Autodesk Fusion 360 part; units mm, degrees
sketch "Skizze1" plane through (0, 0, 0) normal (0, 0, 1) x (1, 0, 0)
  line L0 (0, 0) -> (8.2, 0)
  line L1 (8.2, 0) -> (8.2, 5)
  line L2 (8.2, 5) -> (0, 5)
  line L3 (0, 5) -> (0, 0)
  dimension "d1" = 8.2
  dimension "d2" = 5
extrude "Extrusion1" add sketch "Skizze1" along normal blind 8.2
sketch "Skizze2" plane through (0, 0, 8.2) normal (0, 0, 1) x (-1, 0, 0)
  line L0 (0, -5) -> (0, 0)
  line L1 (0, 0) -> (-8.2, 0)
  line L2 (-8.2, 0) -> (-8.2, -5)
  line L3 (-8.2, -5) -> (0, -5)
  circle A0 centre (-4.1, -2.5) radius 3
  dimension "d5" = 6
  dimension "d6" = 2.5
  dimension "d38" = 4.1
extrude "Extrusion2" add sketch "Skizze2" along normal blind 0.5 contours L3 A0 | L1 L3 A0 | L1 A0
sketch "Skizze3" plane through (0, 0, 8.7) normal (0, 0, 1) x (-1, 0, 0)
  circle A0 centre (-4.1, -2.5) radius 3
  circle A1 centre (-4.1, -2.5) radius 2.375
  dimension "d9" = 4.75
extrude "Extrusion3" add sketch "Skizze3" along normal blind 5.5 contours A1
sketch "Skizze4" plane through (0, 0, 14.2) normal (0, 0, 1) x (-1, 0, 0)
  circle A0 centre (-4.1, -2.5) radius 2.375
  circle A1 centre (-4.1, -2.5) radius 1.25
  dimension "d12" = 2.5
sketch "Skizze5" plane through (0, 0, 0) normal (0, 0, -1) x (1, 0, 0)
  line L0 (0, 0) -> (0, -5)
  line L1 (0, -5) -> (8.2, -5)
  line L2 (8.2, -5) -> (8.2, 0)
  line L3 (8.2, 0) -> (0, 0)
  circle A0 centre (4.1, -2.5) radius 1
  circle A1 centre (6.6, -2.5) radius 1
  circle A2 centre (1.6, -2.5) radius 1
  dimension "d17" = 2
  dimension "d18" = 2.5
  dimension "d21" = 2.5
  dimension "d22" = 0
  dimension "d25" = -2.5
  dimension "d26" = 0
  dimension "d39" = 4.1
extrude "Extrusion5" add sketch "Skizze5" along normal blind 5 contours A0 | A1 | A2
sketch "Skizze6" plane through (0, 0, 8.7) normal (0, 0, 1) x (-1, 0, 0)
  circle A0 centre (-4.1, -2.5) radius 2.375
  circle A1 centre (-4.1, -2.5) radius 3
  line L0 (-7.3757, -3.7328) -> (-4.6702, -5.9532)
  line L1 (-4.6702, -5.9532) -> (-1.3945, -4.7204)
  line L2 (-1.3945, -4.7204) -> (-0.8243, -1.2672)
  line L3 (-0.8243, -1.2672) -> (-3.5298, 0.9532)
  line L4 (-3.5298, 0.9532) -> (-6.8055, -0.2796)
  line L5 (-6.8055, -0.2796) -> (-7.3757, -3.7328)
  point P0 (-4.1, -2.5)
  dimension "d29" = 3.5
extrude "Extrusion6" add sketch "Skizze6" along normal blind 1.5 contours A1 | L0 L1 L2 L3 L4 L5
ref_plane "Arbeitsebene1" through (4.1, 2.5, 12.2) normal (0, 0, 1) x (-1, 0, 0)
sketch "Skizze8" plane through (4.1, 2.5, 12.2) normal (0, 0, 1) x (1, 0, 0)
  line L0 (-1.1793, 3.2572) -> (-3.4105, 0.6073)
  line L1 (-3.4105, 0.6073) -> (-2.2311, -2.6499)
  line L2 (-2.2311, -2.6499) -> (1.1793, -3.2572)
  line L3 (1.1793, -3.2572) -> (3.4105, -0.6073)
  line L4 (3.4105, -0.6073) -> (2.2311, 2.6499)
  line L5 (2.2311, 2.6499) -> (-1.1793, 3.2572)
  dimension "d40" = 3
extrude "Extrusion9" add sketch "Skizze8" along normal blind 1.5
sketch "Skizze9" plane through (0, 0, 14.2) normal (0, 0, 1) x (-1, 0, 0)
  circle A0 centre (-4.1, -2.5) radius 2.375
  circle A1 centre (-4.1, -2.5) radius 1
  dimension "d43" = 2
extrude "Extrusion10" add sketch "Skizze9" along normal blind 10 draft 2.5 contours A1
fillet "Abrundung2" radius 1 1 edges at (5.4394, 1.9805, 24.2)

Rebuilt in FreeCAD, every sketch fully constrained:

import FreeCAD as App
import Part
import Sketcher
Q = App.Units.Quantity


def edges_at(feature, points):
    """Names of the edges that pass closest to the given points."""
    edges = feature.Shape.Edges
    near = lambda p: min(range(len(edges)), key=lambda i: edges[i].distToShape(Part.Vertex(*p))[0])
    return sorted({f"Edge{near(p) + 1}" for p in points})


def add_polygon(sketch, points):
    """Adds a closed chain of lines whose ends are joined by coincident constraints."""
    first, n = sketch.GeometryCount, len(points)
    for a, b in zip(points, points[1:] + points[:1]):
        sketch.addGeometry(Part.LineSegment(App.Vector(*a, 0), App.Vector(*b, 0)), False)
    for i in range(n):
        sketch.addConstraint(Sketcher.Constraint("Coincident", first + i, 2, first + (i + 1) % n, 1))

doc = App.newDocument("Part")
params = doc.addObject("Spreadsheet::Sheet", "Params")
for row, (alias, value) in enumerate([
    ("sketch1_height", "5 mm"),
    ("sketch1_width", "8.2 mm"),
    ("pad1_length", "8.2 mm"),
    ("sketch2_diameter", "6 mm"),
    ("pad2_length", "0.5 mm"),
    ("sketch3_diameter", "4.75 mm"),
    ("pad3_length", "5.5 mm"),
    ("sketch4_diameter", "2 mm"),
    ("pad4_length", "5 mm"),
    ("sketch5_length", "3.5 mm"),
    ("sketch5_diameter", "4.75 mm"),
    ("pad5_length", "1.5 mm"),
    ("pad6_length", "1.5 mm"),
    ("sketch7_diameter", "2 mm"),
    ("pad7_length", "10 mm"),
    ("pad7_taper", "2.5 deg"),
    ("fillet_radius", "1 mm"),
], start=1):
    params.set(f"A{row}", alias)
    params.set(f"B{row}", "=" + value)
    params.setAlias(f"B{row}", alias)

body = doc.addObject("PartDesign::Body", "Body")

# Sketch on XY plane
sketch1 = body.newObject("Sketcher::SketchObject", "Sketch")
sketch1.AttachmentSupport = (doc.getObject("XY_Plane"), [""])
sketch1.MapMode = "FlatFace"
add_polygon(sketch1, [(0, 5), (0, 0), (8, 0), (8, 5)])  # lines 0-3
sketch1.addConstraint(Sketcher.Constraint("Vertical", 0))
sketch1.addConstraint(Sketcher.Constraint("Horizontal", 1))
sketch1.addConstraint(Sketcher.Constraint("Vertical", 2))
sketch1.addConstraint(Sketcher.Constraint("Horizontal", 3))
sketch1.addConstraint(Sketcher.Constraint("Coincident", 0, 2, -1, 1))
sketch1.addConstraint(Sketcher.Constraint("DistanceY", 0, 2, 0, 1, Q("5 mm")))
sketch1.addConstraint(Sketcher.Constraint("DistanceX", 1, 1, 1, 2, Q("8.2 mm")))
sketch1.setExpression("Constraints[9]", "Params.sketch1_height")
sketch1.setExpression("Constraints[10]", "Params.sketch1_width")
pad1 = body.newObject("PartDesign::Pad", "Pad")
pad1.Profile = sketch1
pad1.setExpression("Length", "Params.pad1_length")

# Sketch on XY plane
sketch2 = body.newObject("Sketcher::SketchObject", "Sketch001")
sketch2.AttachmentSupport = (doc.getObject("XY_Plane"), [""])
sketch2.MapMode = "FlatFace"
sketch2.AttachmentOffset = App.Placement(App.Vector(0, 0, 8.2), App.Rotation())
sketch2.addGeometry(Part.Circle(App.Vector(4.1, 2.5, 0), App.Vector(0, 0, 1), 3), False)
sketch2.addConstraint(Sketcher.Constraint("Diameter", 0, Q("6 mm")))
sketch2.addConstraint(Sketcher.Constraint("DistanceX", -1, 1, 0, 3, Q("4.1 mm")))
sketch2.addConstraint(Sketcher.Constraint("DistanceY", -1, 1, 0, 3, Q("2.5 mm")))
sketch2.setExpression("Constraints[0]", "Params.sketch2_diameter")
pad2 = body.newObject("PartDesign::Pad", "Pad001")
pad2.Profile = sketch2
pad2.setExpression("Length", "Params.pad2_length")

# Sketch on XY plane
sketch3 = body.newObject("Sketcher::SketchObject", "Sketch002")
sketch3.AttachmentSupport = (doc.getObject("XY_Plane"), [""])
sketch3.MapMode = "FlatFace"
sketch3.AttachmentOffset = App.Placement(App.Vector(0, 0, 8.7), App.Rotation())
sketch3.addGeometry(Part.Circle(App.Vector(4.1, 2.5, 0), App.Vector(0, 0, 1), 2.4), False)
sketch3.addConstraint(Sketcher.Constraint("Diameter", 0, Q("4.75 mm")))
sketch3.addConstraint(Sketcher.Constraint("DistanceX", -1, 1, 0, 3, Q("4.1 mm")))
sketch3.addConstraint(Sketcher.Constraint("DistanceY", -1, 1, 0, 3, Q("2.5 mm")))
sketch3.setExpression("Constraints[0]", "Params.sketch3_diameter")
pad3 = body.newObject("PartDesign::Pad", "Pad002")
pad3.Profile = sketch3
pad3.setExpression("Length", "Params.pad3_length")

# Sketch on XY plane
sketch4 = body.newObject("Sketcher::SketchObject", "Sketch003")
sketch4.AttachmentSupport = (doc.getObject("XY_Plane"), [""])
sketch4.MapMode = "FlatFace"
sketch4.addGeometry(Part.Circle(App.Vector(4.1, 2.5, 0), App.Vector(0, 0, 1), 1), False)
sketch4.addGeometry(Part.Circle(App.Vector(6.6, 2.5, 0), App.Vector(0, 0, 1), 1), False)
sketch4.addGeometry(Part.Circle(App.Vector(1.6, 2.5, 0), App.Vector(0, 0, 1), 1), False)
sketch4.addConstraint(Sketcher.Constraint("Equal", 0, 1))
sketch4.addConstraint(Sketcher.Constraint("Equal", 1, 2))
sketch4.addConstraint(Sketcher.Constraint("Horizontal", 0, 3, 1, 3))
sketch4.addConstraint(Sketcher.Constraint("Horizontal", 1, 3, 2, 3))
sketch4.addConstraint(Sketcher.Constraint("Diameter", 0, Q("2 mm")))
sketch4.addConstraint(Sketcher.Constraint("DistanceX", -1, 1, 0, 3, Q("4.1 mm")))
sketch4.addConstraint(Sketcher.Constraint("DistanceY", -1, 1, 0, 3, Q("2.5 mm")))
sketch4.addConstraint(Sketcher.Constraint("DistanceX", 0, 3, 1, 3, Q("2.5 mm")))
sketch4.addConstraint(Sketcher.Constraint("DistanceX", 2, 3, 0, 3, Q("2.5 mm")))
sketch4.setExpression("Constraints[4]", "Params.sketch4_diameter")
pad4 = body.newObject("PartDesign::Pad", "Pad003")
pad4.Profile = sketch4
pad4.setExpression("Length", "Params.pad4_length")
pad4.Reversed = True

# Sketch on XY plane
sketch5 = body.newObject("Sketcher::SketchObject", "Sketch004")
sketch5.AttachmentSupport = (doc.getObject("XY_Plane"), [""])
sketch5.MapMode = "FlatFace"
sketch5.AttachmentOffset = App.Placement(App.Vector(0, 0, 8.7), App.Rotation())
add_polygon(sketch5, [(6.8, 0.3), (7.4, 3.7), (4.7, 6), (1.4, 4.7), (0.8, 1.3), (3.5, -1)])  # lines 0-5
sketch5.addGeometry(Part.Circle(App.Vector(4.1, 2.5, 0), App.Vector(0, 0, 1), 2.4), False)  # 6
sketch5.addConstraint(Sketcher.Constraint("Parallel", 0, 3))
sketch5.addConstraint(Sketcher.Constraint("Parallel", 1, 4))
sketch5.addConstraint(Sketcher.Constraint("Parallel", 2, 5))
sketch5.addConstraint(Sketcher.Constraint("Equal", 0, 1))
sketch5.addConstraint(Sketcher.Constraint("Equal", 1, 2))
sketch5.addConstraint(Sketcher.Constraint("Equal", 2, 3))
sketch5.addConstraint(Sketcher.Constraint("Distance", 0, Q("3.5 mm")))
sketch5.addConstraint(Sketcher.Constraint("Diameter", 6, Q("4.75 mm")))
sketch5.addConstraint(Sketcher.Constraint("DistanceX", -1, 1, 6, 3, Q("4.1 mm")))
sketch5.addConstraint(Sketcher.Constraint("DistanceY", -1, 1, 6, 3, Q("2.5 mm")))
sketch5.addConstraint(Sketcher.Constraint("DistanceX", 3, 2, 1, 2, Q("3.846 mm")))
sketch5.addConstraint(Sketcher.Constraint("DistanceY", 3, 2, 1, 2, Q("4.686 mm")))
sketch5.addConstraint(Sketcher.Constraint("DistanceX", -1, 1, 0, 2, Q("7.3757 mm")))
sketch5.addConstraint(Sketcher.Constraint("DistanceY", -1, 1, 0, 2, Q("3.7328 mm")))
sketch5.addConstraint(Sketcher.Constraint("DistanceX", -1, 1, 1, 2, Q("4.6702 mm")))
sketch5.setExpression("Constraints[12]", "Params.sketch5_length")
sketch5.setExpression("Constraints[13]", "Params.sketch5_diameter")
pad5 = body.newObject("PartDesign::Pad", "Pad004")
pad5.Profile = sketch5
pad5.setExpression("Length", "Params.pad5_length")

# Sketch on XY plane
sketch6 = body.newObject("Sketcher::SketchObject", "Sketch005")
sketch6.AttachmentSupport = (doc.getObject("XY_Plane"), [""])
sketch6.MapMode = "FlatFace"
sketch6.AttachmentOffset = App.Placement(App.Vector(0, 0, 12.2), App.Rotation())
add_polygon(sketch6, [(6.3, 5.1), (2.9, 5.8), (0.7, 3.1), (1.9, -0.1), (5.3, -0.8), (7.5, 1.9)])  # lines 0-5
sketch6.addConstraint(Sketcher.Constraint("Parallel", 0, 3))
sketch6.addConstraint(Sketcher.Constraint("Parallel", 1, 4))
sketch6.addConstraint(Sketcher.Constraint("Parallel", 2, 5))
sketch6.addConstraint(Sketcher.Constraint("Equal", 0, 1))
sketch6.addConstraint(Sketcher.Constraint("Equal", 1, 2))
sketch6.addConstraint(Sketcher.Constraint("Equal", 2, 3))
sketch6.addConstraint(Sketcher.Constraint("DistanceY", 2, 2, -1, 1, Q("0.15 mm")))
sketch6.addConstraint(Sketcher.Constraint("DistanceY", -1, 1, 5, 2, Q("5.15 mm")))
sketch6.addConstraint(Sketcher.Constraint("DistanceY", 1, 2, 0, 2, Q("2.65 mm")))
sketch6.addConstraint(Sketcher.Constraint("Distance", 0, Q("3.464 mm")))
sketch6.addConstraint(Sketcher.Constraint("DistanceX", -1, 1, 2, 2, Q("1.869 mm")))
sketch6.addConstraint(Sketcher.Constraint("DistanceX", -1, 1, 5, 2, Q("6.331 mm")))
pad6 = body.newObject("PartDesign::Pad", "Pad005")
pad6.Profile = sketch6
pad6.setExpression("Length", "Params.pad6_length")

# Sketch on XY plane
sketch7 = body.newObject("Sketcher::SketchObject", "Sketch006")
sketch7.AttachmentSupport = (doc.getObject("XY_Plane"), [""])
sketch7.MapMode = "FlatFace"
sketch7.AttachmentOffset = App.Placement(App.Vector(0, 0, 14.2), App.Rotation())
sketch7.addGeometry(Part.Circle(App.Vector(4.1, 2.5, 0), App.Vector(0, 0, 1), 1), False)
sketch7.addConstraint(Sketcher.Constraint("Diameter", 0, Q("2 mm")))
sketch7.addConstraint(Sketcher.Constraint("DistanceX", -1, 1, 0, 3, Q("4.1 mm")))
sketch7.addConstraint(Sketcher.Constraint("DistanceY", -1, 1, 0, 3, Q("2.5 mm")))
sketch7.setExpression("Constraints[0]", "Params.sketch7_diameter")
pad7 = body.newObject("PartDesign::Pad", "Pad006")
pad7.Profile = sketch7
pad7.setExpression("Length", "Params.pad7_length")
pad7.setExpression("TaperAngle", "Params.pad7_taper")
doc.recompute()

fillet = body.newObject("PartDesign::Fillet", "Fillet")
fillet.Base = (pad7, edges_at(pad7, [(5.439, 1.98, 24.2)]))
fillet.setExpression("Radius", "Params.fillet_radius")

doc.recompute()
